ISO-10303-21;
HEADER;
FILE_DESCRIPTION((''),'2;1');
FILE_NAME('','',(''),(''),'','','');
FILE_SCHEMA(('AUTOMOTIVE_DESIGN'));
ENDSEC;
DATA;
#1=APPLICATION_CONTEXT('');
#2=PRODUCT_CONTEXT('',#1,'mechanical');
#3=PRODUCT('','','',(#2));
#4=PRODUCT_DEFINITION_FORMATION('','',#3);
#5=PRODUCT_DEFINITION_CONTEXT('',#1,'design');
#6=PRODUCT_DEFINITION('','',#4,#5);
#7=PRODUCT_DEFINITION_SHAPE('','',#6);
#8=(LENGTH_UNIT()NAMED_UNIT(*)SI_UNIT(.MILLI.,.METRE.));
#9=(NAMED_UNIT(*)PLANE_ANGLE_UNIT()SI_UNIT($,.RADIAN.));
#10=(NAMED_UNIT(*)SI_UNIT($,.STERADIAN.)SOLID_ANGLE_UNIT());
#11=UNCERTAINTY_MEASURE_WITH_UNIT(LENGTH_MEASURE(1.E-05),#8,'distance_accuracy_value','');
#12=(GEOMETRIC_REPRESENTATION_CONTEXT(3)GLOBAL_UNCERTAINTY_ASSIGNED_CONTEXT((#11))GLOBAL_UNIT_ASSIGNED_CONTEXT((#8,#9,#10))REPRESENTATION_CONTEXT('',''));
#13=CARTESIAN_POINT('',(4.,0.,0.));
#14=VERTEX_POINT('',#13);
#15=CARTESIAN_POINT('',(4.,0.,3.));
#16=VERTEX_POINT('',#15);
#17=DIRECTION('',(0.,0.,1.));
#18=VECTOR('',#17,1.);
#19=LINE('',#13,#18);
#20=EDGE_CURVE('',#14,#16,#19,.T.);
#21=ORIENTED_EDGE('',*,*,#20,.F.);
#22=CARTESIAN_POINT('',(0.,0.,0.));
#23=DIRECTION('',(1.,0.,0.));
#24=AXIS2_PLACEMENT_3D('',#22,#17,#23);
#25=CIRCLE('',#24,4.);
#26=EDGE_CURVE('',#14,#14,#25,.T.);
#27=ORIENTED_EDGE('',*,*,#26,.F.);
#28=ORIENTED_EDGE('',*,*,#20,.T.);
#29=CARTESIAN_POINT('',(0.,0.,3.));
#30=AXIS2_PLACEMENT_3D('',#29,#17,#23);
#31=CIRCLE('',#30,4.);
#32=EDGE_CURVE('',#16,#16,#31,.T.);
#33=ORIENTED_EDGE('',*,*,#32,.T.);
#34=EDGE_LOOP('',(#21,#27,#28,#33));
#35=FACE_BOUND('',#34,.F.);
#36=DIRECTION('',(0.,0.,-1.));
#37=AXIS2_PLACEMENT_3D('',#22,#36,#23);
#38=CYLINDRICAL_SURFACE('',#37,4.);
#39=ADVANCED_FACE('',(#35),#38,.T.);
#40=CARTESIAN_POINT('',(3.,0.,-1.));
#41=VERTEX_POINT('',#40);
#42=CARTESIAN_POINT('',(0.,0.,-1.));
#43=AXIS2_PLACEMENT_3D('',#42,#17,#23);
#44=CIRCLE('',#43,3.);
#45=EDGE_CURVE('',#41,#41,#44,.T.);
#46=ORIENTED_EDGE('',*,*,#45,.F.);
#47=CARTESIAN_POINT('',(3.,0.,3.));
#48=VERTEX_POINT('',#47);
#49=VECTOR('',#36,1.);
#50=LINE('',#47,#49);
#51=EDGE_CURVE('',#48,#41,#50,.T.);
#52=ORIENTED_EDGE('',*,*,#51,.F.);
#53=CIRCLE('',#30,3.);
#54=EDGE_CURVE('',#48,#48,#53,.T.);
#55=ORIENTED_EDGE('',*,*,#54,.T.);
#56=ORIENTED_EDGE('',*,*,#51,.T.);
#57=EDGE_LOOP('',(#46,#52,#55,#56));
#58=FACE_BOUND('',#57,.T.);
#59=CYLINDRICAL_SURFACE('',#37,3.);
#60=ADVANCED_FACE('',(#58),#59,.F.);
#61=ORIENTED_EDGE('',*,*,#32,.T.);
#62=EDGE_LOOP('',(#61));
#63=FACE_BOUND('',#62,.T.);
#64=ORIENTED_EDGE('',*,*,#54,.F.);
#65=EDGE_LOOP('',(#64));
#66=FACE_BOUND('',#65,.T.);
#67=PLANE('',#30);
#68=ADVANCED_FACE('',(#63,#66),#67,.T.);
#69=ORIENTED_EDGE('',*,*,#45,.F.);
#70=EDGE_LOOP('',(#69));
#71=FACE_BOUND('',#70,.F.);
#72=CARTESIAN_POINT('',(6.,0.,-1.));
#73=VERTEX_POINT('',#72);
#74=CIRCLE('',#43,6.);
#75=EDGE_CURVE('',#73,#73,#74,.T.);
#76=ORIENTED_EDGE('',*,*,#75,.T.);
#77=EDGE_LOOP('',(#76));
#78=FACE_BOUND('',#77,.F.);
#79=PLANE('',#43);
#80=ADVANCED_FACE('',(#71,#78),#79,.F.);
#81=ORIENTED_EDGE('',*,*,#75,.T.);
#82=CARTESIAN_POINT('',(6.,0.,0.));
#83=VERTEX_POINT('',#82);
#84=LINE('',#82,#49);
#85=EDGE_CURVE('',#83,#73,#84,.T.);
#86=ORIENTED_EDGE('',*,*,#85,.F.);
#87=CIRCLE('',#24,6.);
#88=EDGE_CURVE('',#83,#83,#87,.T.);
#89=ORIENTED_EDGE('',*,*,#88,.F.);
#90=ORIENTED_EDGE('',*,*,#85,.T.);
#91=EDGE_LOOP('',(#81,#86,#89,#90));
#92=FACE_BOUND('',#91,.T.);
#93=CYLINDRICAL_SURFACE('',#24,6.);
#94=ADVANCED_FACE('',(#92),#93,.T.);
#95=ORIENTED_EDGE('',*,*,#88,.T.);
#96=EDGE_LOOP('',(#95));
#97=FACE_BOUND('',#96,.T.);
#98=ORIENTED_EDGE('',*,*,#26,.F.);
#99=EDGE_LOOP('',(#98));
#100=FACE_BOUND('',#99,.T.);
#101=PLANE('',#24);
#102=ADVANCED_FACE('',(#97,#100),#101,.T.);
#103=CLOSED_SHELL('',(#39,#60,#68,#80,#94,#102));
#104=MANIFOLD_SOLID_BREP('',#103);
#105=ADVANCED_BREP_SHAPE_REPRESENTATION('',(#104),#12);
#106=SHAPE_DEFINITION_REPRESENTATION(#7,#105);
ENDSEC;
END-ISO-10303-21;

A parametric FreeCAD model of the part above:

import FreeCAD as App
import Part
import Sketcher
from FreeCAD import Vector

doc = App.newDocument("Part")
body = doc.addObject("PartDesign::Body", "Body")

# Sketch on XY plane
sketch1 = doc.addObject("Sketcher::SketchObject", "Sketch")
body.addObject(sketch1)
sketch1.AttachmentSupport = (doc.XY_Plane, [""])
sketch1.MapMode = "FlatFace"
sketch1.addGeometry([
    Part.Circle(Vector(0, 0, 0), Vector(0, 0, 1), 4),
    Part.Circle(Vector(0, 0, 0), Vector(0, 0, 1), 3),
], False)
sketch1.addConstraint([
    Sketcher.Constraint("Coincident", 0, 3, -1, 1),
    Sketcher.Constraint("Coincident", 1, 3, -1, 1),
    Sketcher.Constraint("Diameter", 0, 8.0),
    Sketcher.Constraint("Diameter", 1, 6.0),
])
pad1 = doc.addObject("PartDesign::Pad", "Pad")
body.addObject(pad1)
pad1.Profile = sketch1
pad1.Length = 3

# Sketch on XY plane
sketch2 = doc.addObject("Sketcher::SketchObject", "Sketch001")
body.addObject(sketch2)
sketch2.AttachmentSupport = (doc.XY_Plane, [""])
sketch2.MapMode = "FlatFace"
sketch2.addGeometry([
    Part.Circle(Vector(0, 0, 0), Vector(0, 0, 1), 6),
    Part.Circle(Vector(0, 0, 0), Vector(0, 0, 1), 3),
], False)
sketch2.addConstraint([
    Sketcher.Constraint("Coincident", 0, 3, -1, 1),
    Sketcher.Constraint("Coincident", 1, 3, -1, 1),
    Sketcher.Constraint("Diameter", 0, 12.0),
    Sketcher.Constraint("Diameter", 1, 6.0),
])
pad2 = doc.addObject("PartDesign::Pad", "Pad001")
body.addObject(pad2)
pad2.Profile = sketch2
pad2.Length = 1
pad2.Reversed = True

doc.recompute()
